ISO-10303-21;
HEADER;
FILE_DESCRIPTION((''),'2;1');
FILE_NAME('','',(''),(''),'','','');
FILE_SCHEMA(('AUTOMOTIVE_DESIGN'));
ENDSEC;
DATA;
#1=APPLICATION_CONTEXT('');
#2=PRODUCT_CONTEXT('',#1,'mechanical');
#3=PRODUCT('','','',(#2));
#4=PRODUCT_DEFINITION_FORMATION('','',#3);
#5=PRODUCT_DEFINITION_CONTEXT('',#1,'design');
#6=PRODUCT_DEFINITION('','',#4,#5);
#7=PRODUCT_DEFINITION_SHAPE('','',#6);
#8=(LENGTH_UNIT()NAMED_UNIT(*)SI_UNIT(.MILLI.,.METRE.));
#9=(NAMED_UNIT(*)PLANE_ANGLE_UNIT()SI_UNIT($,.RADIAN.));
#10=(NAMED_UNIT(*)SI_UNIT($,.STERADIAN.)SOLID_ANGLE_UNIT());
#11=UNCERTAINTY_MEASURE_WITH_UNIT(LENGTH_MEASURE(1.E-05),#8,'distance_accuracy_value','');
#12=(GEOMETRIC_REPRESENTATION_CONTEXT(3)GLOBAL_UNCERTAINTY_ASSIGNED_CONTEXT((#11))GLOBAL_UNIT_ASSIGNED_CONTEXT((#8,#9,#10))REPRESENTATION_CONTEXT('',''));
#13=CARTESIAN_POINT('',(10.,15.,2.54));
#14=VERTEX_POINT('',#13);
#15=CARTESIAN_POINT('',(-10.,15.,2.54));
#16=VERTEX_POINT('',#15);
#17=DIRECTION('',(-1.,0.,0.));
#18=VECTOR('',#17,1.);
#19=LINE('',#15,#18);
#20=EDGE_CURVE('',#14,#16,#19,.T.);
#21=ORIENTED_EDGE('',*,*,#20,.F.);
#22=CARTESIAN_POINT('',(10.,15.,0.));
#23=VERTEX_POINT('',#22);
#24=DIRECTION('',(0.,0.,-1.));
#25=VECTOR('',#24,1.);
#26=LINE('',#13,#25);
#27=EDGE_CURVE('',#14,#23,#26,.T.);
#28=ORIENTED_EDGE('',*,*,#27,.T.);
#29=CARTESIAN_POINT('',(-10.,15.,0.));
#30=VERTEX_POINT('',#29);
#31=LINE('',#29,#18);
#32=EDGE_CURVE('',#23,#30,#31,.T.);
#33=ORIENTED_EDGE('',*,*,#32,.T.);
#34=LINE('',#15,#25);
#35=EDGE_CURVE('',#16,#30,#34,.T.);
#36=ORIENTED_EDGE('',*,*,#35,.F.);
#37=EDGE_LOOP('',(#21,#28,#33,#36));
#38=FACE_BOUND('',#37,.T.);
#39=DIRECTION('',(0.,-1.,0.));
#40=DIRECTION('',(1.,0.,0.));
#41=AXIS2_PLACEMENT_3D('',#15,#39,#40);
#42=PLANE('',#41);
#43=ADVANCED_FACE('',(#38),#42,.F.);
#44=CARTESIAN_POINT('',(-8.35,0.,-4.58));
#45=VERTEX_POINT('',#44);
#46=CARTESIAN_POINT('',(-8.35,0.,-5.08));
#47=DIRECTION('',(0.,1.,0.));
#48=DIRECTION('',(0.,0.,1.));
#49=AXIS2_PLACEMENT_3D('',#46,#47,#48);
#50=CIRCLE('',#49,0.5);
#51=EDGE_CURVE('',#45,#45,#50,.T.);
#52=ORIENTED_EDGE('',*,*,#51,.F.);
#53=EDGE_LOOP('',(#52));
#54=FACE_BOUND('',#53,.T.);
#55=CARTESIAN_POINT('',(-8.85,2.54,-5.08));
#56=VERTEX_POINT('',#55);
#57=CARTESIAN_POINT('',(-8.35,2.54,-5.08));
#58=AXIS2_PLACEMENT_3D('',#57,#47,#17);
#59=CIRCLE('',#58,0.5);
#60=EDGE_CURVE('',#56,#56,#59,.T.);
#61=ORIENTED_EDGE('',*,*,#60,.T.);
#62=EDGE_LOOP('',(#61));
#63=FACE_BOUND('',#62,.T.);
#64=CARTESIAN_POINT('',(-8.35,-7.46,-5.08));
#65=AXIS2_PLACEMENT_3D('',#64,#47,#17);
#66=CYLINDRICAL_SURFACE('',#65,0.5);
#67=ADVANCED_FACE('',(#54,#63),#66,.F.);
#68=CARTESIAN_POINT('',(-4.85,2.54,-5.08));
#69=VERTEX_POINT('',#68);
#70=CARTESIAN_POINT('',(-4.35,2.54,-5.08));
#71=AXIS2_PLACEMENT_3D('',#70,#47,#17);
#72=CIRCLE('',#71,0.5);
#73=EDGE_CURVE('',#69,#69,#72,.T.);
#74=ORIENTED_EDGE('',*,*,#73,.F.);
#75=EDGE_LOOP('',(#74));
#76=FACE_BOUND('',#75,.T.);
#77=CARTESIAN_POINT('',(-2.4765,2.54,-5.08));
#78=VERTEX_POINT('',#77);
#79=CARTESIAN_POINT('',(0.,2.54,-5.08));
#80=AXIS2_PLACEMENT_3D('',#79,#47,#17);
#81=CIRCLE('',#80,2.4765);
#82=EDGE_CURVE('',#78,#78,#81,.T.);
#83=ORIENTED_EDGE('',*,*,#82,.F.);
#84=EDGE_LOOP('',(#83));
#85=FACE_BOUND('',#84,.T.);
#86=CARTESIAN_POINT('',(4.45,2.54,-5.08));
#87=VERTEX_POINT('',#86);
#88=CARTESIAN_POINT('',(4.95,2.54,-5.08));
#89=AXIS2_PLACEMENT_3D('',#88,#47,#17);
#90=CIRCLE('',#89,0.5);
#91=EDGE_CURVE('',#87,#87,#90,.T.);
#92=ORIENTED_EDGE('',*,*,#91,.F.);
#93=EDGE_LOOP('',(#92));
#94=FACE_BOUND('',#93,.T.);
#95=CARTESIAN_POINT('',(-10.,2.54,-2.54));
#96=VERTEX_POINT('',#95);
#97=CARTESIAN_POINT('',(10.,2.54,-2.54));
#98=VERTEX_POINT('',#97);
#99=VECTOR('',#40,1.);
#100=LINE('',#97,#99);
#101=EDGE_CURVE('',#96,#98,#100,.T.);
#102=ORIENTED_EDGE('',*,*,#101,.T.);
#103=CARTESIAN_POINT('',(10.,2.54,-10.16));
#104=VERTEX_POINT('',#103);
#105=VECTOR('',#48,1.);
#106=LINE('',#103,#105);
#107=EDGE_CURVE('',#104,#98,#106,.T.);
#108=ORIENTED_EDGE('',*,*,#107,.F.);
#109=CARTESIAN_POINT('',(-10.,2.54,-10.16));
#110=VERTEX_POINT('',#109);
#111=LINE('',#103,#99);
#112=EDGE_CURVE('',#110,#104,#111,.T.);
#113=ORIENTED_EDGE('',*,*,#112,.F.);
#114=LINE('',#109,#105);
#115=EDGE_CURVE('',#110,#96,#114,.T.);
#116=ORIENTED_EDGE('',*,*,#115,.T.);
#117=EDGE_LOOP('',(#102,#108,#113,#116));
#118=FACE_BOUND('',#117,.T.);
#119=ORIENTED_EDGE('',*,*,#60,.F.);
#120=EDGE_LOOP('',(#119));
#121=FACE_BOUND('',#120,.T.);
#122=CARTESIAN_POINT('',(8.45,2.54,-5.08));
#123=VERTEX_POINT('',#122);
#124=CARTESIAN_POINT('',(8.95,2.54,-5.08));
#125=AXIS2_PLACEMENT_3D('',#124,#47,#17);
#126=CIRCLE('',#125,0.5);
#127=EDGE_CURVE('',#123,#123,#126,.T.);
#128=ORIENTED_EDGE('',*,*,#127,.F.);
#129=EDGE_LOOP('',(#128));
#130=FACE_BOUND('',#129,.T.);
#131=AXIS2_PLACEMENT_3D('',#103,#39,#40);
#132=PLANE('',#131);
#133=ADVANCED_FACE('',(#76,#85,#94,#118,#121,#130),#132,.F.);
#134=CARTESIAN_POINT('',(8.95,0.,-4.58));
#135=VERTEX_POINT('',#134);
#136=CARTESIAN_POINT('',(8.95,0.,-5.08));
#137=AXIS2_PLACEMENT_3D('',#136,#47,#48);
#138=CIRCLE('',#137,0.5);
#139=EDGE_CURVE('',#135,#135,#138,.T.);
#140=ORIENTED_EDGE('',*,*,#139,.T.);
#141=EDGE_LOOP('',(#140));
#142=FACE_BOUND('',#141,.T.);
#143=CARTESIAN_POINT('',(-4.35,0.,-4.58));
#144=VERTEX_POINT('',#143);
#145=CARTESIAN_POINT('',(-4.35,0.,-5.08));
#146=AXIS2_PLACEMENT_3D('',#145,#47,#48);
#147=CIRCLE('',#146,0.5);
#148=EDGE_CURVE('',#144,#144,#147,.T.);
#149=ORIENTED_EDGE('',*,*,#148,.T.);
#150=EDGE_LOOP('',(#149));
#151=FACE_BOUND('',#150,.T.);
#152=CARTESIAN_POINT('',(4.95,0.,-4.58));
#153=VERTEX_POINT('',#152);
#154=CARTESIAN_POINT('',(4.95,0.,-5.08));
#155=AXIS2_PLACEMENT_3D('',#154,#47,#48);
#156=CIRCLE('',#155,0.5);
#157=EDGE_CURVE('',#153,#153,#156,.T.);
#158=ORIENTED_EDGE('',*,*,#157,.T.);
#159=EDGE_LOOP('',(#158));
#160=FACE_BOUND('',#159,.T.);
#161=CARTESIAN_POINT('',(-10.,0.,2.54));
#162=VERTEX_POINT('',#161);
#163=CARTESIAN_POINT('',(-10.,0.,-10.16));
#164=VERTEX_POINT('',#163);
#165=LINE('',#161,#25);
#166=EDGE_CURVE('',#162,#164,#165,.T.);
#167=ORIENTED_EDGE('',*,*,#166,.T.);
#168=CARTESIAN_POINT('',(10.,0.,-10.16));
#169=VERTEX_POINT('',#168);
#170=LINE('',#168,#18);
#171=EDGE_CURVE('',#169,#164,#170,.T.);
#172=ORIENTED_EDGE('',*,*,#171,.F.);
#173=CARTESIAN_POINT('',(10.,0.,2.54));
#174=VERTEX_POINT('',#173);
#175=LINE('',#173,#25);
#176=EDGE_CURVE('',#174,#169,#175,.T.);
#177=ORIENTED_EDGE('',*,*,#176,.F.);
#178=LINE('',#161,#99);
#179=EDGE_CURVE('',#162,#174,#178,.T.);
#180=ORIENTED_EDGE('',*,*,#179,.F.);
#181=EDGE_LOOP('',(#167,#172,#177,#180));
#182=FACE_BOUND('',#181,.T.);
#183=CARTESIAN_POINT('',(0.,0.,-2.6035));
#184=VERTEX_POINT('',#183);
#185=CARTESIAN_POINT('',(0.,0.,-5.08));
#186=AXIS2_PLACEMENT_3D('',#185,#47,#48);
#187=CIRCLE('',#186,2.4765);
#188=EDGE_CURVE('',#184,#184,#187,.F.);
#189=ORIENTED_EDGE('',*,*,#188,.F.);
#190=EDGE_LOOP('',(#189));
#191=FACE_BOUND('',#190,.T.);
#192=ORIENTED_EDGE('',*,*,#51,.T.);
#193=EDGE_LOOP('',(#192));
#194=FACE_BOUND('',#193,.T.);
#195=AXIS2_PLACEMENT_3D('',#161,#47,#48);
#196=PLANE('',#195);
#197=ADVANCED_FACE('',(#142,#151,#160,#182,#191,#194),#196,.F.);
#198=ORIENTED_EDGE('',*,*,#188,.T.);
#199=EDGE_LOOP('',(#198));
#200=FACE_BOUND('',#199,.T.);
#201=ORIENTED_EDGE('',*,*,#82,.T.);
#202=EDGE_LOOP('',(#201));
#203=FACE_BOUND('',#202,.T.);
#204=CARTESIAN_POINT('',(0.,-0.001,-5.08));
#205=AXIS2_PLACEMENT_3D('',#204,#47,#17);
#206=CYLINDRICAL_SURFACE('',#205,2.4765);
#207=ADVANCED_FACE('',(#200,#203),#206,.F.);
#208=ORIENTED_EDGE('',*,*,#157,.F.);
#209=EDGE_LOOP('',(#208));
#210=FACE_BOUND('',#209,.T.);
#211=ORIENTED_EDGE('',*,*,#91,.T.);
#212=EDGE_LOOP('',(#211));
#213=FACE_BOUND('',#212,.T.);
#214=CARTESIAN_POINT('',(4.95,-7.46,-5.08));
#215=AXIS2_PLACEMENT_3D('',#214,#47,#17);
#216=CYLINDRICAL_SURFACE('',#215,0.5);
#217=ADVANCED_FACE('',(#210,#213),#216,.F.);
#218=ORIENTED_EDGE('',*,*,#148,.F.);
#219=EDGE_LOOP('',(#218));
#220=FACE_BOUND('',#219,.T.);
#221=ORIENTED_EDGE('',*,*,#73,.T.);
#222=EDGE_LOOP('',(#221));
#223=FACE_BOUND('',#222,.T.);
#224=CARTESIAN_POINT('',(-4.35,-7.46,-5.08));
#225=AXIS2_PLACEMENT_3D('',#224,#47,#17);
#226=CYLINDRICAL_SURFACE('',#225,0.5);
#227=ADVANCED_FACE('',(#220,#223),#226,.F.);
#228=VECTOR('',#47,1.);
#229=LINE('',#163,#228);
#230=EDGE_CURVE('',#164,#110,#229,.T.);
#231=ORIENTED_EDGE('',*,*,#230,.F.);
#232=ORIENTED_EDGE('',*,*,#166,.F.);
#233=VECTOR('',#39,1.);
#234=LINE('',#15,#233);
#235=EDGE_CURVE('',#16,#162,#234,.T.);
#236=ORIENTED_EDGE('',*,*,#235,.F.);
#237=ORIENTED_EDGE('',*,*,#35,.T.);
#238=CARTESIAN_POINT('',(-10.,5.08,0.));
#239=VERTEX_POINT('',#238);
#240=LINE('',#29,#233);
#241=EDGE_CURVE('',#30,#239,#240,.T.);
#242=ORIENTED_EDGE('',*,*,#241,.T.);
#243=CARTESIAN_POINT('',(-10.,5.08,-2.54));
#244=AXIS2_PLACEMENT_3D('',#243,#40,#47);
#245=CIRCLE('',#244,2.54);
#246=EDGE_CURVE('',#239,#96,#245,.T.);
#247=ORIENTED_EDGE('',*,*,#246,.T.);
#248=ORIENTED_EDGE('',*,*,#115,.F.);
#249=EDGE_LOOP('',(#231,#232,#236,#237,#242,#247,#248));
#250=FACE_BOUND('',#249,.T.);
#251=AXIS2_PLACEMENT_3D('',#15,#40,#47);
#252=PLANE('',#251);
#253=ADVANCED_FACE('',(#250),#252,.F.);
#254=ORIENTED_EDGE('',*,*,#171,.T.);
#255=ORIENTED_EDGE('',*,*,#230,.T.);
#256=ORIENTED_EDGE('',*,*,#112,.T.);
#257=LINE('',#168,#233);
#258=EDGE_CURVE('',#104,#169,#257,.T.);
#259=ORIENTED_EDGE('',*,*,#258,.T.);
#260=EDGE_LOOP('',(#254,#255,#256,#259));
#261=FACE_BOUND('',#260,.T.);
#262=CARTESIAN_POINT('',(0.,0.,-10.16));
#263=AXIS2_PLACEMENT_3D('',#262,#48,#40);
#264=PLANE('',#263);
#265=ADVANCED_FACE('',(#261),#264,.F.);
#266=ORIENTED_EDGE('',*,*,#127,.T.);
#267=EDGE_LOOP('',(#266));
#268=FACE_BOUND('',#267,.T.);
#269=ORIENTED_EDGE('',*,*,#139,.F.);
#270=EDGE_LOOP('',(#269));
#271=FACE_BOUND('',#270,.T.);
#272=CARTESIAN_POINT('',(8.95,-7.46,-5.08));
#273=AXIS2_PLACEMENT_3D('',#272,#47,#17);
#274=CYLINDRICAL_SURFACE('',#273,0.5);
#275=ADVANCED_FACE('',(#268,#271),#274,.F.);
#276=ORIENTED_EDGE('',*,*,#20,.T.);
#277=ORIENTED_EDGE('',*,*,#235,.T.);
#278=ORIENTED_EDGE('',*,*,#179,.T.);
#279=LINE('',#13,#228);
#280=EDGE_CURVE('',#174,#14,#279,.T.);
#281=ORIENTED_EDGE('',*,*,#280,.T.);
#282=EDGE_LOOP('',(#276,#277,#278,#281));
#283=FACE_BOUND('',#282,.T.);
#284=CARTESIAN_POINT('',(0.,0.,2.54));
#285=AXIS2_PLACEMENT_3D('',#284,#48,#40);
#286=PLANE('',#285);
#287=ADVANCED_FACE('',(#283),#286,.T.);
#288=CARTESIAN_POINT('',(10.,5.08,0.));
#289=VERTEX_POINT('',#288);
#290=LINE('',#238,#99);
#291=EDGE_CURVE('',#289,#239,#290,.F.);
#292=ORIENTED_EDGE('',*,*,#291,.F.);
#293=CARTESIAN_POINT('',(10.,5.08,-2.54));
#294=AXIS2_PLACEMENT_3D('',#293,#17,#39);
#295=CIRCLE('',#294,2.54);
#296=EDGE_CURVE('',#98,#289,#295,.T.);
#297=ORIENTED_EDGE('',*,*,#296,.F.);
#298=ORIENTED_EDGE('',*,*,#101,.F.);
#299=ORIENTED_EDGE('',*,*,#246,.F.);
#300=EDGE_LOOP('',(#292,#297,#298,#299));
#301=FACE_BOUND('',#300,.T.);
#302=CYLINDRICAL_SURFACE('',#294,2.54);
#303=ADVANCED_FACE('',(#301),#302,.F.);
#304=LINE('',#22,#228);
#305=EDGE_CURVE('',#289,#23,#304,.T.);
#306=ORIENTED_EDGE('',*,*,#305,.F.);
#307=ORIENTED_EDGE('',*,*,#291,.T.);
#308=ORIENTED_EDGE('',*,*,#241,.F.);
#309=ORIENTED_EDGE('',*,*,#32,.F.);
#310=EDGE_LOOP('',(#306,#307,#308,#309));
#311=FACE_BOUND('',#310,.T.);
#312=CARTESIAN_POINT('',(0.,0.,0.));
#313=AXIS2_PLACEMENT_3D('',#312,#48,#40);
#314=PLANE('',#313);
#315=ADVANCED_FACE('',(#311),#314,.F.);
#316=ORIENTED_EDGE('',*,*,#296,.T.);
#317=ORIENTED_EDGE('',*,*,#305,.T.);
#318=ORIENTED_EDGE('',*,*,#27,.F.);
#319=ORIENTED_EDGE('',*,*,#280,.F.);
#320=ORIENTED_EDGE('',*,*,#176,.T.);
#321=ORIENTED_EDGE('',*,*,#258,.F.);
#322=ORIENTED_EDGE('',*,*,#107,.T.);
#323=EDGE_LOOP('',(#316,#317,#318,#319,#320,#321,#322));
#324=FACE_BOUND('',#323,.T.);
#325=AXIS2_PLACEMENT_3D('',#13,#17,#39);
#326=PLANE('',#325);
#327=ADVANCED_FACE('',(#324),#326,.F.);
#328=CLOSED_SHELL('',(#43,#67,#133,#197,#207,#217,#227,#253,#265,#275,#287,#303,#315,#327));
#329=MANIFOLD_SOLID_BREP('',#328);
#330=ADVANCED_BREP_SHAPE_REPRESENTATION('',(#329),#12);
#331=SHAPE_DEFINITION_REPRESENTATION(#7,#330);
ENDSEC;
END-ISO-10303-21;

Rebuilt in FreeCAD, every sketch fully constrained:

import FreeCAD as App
import Part
import Sketcher


def edges_at(feature, points):
    """Names of the edges that pass closest to the given points."""
    edges = feature.Shape.Edges
    near = lambda p: min(range(len(edges)), key=lambda i: edges[i].distToShape(Part.Vertex(*p))[0])
    return sorted({f"Edge{near(p) + 1}" for p in points})


def add_polygon(sketch, points):
    """Adds a closed chain of lines whose ends are joined by coincident constraints."""
    first, n = sketch.GeometryCount, len(points)
    for a, b in zip(points, points[1:] + points[:1]):
        sketch.addGeometry(Part.LineSegment(App.Vector(*a, 0), App.Vector(*b, 0)), False)
    for i in range(n):
        sketch.addConstraint(Sketcher.Constraint("Coincident", first + i, 2, first + (i + 1) % n, 1))

doc = App.newDocument("Part")
body = doc.addObject("PartDesign::Body", "Body")

# Sketch on XY plane
sketch1 = body.newObject("Sketcher::SketchObject", "Sketch")
sketch1.AttachmentSupport = (doc.getObject("XY_Plane"), [""])
sketch1.MapMode = "FlatFace"
add_polygon(sketch1, [(-10, 15), (-10, 0), (10, 0), (10, 15)])  # lines 0-3
sketch1.addConstraint([
    Sketcher.Constraint("Vertical", 0),
    Sketcher.Constraint("Horizontal", 1),
    Sketcher.Constraint("Vertical", 2),
    Sketcher.Constraint("Horizontal", 3),
    Sketcher.Constraint("Symmetric", 0, 2, 1, 2, -1, 1),
    Sketcher.Constraint("DistanceX", 1, 1, 1, 2, 20.0),
    Sketcher.Constraint("DistanceY", 0, 2, 0, 1, 15.0),
])
pad1 = body.newObject("PartDesign::Pad", "Pad")
pad1.Profile = sketch1
pad1.Length = 2.54

# Sketch on XY plane
sketch2 = body.newObject("Sketcher::SketchObject", "Sketch001")
sketch2.AttachmentSupport = (doc.getObject("XY_Plane"), [""])
sketch2.MapMode = "FlatFace"
add_polygon(sketch2, [(10, 2.5), (10, 0), (-10, 0), (-10, 2.5)])  # lines 0-3
sketch2.addConstraint([
    Sketcher.Constraint("Vertical", 0),
    Sketcher.Constraint("Horizontal", 1),
    Sketcher.Constraint("Vertical", 2),
    Sketcher.Constraint("Horizontal", 3),
    Sketcher.Constraint("Symmetric", 0, 2, 1, 2, -1, 1),
    Sketcher.Constraint("DistanceX", 1, 2, 1, 1, 20.0),
    Sketcher.Constraint("DistanceY", 0, 2, 0, 1, 2.54),
])
pad2 = body.newObject("PartDesign::Pad", "Pad001")
pad2.Profile = sketch2
pad2.Length = 10.16
pad2.Reversed = True

# Sketch on XZ plane
sketch3 = body.newObject("Sketcher::SketchObject", "Sketch002")
sketch3.AttachmentSupport = (doc.getObject("XZ_Plane"), [""])
sketch3.MapMode = "FlatFace"
sketch3.AttachmentOffset = App.Placement(App.Vector(0, 0, -2.54), App.Rotation())
sketch3.addGeometry(Part.Circle(App.Vector(0, -5.1, 0), App.Vector(0, 0, 1), 2.5), False)
sketch3.addConstraint([
    Sketcher.Constraint("PointOnObject", 0, 3, -2),
    Sketcher.Constraint("Diameter", 0, 4.953),
    Sketcher.Constraint("DistanceY", 0, 3, -1, 1, 5.08),
])
pocket1 = body.newObject("PartDesign::Pocket", "Pocket")
pocket1.Profile = sketch3
pocket1.Type = "UpToFirst"
pocket1.Reversed = True
doc.recompute()

fillet = body.newObject("PartDesign::Fillet", "Fillet")
fillet.Base = (pocket1, edges_at(pocket1, [(0, 2.54, 0)]))
fillet.Radius = 2.54

# Sketch on XZ plane
sketch4 = body.newObject("Sketcher::SketchObject", "Sketch003")
sketch4.AttachmentSupport = (doc.getObject("XZ_Plane"), [""])
sketch4.MapMode = "FlatFace"
sketch4.AttachmentOffset = App.Placement(App.Vector(0, 0, -2.54), App.Rotation())
sketch4.addGeometry([
    Part.Circle(App.Vector(-8.3, -5.1, 0), App.Vector(0, 0, 1), 0.5),
    Part.Circle(App.Vector(-4.3, -5.1, 0), App.Vector(0, 0, 1), 0.5),
    Part.Circle(App.Vector(5, -5.1, 0), App.Vector(0, 0, 1), 0.5),
    Part.Circle(App.Vector(8.9, -5.1, 0), App.Vector(0, 0, 1), 0.5),
], False)
sketch4.addConstraint([
    Sketcher.Constraint("Equal", 0, 1),
    Sketcher.Constraint("Equal", 1, 2),
    Sketcher.Constraint("Equal", 2, 3),
    Sketcher.Constraint("Horizontal", 0, 3, 1, 3),
    Sketcher.Constraint("Horizontal", 1, 3, 2, 3),
    Sketcher.Constraint("Horizontal", 2, 3, 3, 3),
    Sketcher.Constraint("Diameter", 0, 1.0),
    Sketcher.Constraint("DistanceX", 0, 3, 1, 3, 4.0),
    Sketcher.Constraint("DistanceX", 2, 3, 3, 3, 4.0),
    Sketcher.Constraint("DistanceX", 1, 3, 2, 3, 9.3),
    Sketcher.Constraint("DistanceX", 0, 3, -1, 1, 8.35),
    Sketcher.Constraint("DistanceY", 0, 3, -1, 1, 5.08),
])
pocket2 = body.newObject("PartDesign::Pocket", "Pocket001")
pocket2.Profile = sketch4
pocket2.Length = 10
pocket2.Reversed = True

doc.recompute()
